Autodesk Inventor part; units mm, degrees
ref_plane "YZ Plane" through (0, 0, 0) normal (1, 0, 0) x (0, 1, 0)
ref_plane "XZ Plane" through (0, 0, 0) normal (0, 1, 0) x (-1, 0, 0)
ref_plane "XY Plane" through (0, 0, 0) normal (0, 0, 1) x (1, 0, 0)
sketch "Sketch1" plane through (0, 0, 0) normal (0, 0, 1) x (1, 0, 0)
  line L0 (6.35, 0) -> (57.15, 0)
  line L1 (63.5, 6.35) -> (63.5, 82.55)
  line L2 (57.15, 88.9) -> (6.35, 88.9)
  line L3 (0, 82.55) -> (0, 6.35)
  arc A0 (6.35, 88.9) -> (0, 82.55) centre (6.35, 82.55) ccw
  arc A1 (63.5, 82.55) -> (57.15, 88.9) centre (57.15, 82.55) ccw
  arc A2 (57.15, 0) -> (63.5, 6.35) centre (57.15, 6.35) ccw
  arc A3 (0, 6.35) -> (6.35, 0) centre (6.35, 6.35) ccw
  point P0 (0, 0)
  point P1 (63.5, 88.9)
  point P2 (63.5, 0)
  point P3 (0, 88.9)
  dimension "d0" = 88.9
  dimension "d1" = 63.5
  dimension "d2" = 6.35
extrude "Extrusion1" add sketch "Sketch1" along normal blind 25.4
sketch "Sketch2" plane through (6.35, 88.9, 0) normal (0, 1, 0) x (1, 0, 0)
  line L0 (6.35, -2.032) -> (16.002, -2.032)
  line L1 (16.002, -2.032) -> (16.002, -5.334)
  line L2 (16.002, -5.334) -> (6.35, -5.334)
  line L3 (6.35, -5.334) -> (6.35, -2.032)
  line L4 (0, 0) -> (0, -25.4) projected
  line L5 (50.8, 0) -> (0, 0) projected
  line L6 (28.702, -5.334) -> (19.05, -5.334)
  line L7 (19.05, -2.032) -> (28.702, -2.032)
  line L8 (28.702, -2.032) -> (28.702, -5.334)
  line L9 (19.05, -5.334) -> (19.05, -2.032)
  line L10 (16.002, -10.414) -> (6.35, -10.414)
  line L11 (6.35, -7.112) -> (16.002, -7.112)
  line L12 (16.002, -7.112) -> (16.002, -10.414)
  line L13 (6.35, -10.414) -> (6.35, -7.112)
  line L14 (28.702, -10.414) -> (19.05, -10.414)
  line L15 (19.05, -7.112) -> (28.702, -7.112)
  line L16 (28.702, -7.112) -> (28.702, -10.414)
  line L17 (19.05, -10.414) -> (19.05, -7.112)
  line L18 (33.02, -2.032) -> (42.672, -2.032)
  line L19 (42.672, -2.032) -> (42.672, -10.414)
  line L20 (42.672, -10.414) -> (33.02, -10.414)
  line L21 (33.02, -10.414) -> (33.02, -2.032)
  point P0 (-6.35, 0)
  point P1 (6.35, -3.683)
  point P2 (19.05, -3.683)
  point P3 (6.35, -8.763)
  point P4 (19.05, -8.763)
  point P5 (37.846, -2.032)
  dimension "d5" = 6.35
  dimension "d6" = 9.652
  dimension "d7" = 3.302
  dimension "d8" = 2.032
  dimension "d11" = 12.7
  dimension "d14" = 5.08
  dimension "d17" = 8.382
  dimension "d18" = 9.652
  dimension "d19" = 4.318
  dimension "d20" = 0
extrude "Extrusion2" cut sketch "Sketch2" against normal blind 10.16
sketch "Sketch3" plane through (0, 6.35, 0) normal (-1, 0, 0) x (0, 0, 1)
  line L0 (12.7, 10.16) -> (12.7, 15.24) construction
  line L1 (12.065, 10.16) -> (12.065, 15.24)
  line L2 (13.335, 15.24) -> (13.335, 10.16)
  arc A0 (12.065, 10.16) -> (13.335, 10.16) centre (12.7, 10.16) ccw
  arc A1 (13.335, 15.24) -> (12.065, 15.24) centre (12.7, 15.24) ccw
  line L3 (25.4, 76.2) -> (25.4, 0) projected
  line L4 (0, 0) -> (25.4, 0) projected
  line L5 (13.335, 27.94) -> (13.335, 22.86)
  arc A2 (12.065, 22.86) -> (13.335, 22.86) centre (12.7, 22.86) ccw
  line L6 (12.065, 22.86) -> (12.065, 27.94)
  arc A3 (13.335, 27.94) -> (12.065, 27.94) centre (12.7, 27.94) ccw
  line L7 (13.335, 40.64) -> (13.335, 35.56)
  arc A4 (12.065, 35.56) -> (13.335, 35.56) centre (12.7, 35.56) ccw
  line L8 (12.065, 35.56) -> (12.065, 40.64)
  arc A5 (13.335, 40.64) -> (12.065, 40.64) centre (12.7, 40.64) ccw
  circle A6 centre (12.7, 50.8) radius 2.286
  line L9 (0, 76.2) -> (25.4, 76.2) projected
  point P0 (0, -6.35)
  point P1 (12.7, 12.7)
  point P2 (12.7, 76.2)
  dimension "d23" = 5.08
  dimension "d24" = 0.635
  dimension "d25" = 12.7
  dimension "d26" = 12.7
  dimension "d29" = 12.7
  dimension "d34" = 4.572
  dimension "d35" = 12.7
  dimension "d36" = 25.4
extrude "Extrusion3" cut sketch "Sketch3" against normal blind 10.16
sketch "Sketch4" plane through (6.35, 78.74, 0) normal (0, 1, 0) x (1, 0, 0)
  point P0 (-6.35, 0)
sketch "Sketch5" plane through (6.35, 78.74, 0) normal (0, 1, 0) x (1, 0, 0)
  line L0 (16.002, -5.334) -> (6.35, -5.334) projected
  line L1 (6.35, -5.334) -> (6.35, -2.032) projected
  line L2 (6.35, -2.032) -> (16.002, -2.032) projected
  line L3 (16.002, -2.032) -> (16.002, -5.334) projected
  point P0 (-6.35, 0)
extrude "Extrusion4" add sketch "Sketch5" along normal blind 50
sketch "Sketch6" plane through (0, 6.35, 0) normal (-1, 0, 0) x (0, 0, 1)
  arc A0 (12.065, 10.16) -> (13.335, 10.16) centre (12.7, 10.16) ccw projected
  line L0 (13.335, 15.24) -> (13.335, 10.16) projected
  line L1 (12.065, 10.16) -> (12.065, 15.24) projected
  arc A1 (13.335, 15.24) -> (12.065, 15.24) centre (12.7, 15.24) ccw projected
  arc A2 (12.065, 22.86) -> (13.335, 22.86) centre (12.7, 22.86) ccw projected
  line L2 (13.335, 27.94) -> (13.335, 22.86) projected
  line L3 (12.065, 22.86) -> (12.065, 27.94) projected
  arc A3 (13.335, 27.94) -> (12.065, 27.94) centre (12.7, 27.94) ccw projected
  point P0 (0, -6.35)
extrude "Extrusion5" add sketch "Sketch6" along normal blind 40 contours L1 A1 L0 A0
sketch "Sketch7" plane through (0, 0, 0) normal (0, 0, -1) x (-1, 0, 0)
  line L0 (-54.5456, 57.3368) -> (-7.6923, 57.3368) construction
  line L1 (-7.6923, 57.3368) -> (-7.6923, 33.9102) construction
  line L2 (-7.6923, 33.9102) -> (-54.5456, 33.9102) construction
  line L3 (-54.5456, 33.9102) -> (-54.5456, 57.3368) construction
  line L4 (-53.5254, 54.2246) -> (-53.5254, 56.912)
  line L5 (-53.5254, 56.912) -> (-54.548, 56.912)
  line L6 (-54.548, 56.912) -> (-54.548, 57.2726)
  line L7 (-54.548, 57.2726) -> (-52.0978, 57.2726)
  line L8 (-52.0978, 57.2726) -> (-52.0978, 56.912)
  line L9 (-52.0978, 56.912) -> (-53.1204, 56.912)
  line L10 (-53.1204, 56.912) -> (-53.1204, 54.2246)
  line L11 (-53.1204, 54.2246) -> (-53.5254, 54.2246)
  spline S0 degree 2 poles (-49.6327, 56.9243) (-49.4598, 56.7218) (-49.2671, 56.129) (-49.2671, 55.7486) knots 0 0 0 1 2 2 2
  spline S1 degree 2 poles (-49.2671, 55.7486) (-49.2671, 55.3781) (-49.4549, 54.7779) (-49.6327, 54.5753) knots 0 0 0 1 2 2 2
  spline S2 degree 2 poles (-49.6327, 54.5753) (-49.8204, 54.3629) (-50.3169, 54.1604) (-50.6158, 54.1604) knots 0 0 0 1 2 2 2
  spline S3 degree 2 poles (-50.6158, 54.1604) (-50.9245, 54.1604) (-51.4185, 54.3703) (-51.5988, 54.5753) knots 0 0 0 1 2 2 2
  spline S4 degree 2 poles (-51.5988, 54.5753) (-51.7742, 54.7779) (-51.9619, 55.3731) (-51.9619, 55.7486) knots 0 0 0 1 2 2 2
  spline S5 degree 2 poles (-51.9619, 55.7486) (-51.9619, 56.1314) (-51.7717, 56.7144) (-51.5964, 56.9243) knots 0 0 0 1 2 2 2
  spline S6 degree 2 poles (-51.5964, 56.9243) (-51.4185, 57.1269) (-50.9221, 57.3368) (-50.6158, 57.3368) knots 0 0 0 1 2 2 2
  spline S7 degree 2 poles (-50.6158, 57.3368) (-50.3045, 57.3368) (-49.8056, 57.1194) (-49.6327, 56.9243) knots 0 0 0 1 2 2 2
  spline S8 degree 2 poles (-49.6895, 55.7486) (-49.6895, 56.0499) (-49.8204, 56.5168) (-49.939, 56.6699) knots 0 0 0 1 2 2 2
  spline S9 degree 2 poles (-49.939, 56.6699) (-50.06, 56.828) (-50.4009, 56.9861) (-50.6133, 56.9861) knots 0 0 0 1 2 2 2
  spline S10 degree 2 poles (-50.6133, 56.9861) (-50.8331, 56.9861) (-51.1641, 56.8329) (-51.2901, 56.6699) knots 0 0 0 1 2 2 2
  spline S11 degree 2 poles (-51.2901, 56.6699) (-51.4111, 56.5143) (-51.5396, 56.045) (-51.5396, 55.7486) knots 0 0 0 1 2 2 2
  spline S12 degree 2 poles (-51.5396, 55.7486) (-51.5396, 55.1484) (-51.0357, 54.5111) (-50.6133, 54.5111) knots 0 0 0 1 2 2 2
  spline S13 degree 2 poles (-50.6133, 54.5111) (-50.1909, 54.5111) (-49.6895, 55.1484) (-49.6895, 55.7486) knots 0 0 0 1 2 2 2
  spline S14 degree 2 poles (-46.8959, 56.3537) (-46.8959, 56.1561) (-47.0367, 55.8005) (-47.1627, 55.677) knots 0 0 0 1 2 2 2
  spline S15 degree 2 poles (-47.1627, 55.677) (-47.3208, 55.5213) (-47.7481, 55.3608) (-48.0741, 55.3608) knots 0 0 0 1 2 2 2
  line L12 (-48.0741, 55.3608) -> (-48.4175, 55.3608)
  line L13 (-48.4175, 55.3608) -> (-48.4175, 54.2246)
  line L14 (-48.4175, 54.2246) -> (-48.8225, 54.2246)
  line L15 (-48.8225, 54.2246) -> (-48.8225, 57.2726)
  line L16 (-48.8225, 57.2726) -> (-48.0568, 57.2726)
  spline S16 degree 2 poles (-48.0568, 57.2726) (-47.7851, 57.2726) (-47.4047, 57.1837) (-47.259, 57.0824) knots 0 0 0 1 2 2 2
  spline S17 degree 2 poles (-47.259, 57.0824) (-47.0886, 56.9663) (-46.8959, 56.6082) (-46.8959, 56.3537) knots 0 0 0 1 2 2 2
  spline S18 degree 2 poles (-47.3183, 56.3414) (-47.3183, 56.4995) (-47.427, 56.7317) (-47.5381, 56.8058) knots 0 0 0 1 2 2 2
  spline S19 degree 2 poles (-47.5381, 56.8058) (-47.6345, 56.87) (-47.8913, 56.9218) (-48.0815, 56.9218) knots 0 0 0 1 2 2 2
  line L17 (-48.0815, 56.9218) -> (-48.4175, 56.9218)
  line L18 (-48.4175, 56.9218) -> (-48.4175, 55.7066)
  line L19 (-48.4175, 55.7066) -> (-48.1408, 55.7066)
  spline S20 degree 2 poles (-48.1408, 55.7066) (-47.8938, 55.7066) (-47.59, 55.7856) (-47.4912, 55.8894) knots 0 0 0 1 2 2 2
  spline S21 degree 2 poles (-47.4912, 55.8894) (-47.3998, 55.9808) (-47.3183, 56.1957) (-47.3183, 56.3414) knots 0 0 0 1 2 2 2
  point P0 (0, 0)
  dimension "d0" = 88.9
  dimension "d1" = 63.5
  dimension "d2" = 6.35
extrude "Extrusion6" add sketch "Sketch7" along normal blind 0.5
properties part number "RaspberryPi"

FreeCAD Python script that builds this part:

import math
import FreeCAD as App
import Part
import Sketcher

V = App.Vector
Q = App.Units.Quantity

doc = App.newDocument("Part")
body = doc.addObject("PartDesign::Body", "Body")
body.AllowCompound = True

# Sketch on XY plane
sketch1 = doc.addObject("Sketcher::SketchObject", "Sketch")
body.addObject(sketch1)
sketch1.AttachmentSupport = (doc.XY_Plane, [""])
sketch1.MapMode = "FlatFace"
sketch1.addGeometry([
    Part.ArcOfCircle(Part.Circle(V(6, 6, 0), V(0, 0, 1), 6), math.radians(180), math.radians(270)),  # 0
    Part.LineSegment(V(6, 0, 0), V(57, 0, 0)),  # 1
    Part.ArcOfCircle(Part.Circle(V(57, 6, 0), V(0, 0, 1), 6), math.radians(-90), math.radians(0)),  # 2
    Part.LineSegment(V(64, 6, 0), V(64, 83, 0)),  # 3
    Part.ArcOfCircle(Part.Circle(V(57, 83, 0), V(0, 0, 1), 6), math.radians(0), math.radians(90)),  # 4
    Part.LineSegment(V(57, 89, 0), V(6, 89, 0)),  # 5
    Part.ArcOfCircle(Part.Circle(V(6, 83, 0), V(0, 0, 1), 6), math.radians(90), math.radians(180)),  # 6
    Part.LineSegment(V(0, 83, 0), V(0, 6, 0)),  # 7
], False)
sketch1.addConstraint([
    Sketcher.Constraint("Tangent", 0, 2, 1, 1),
    Sketcher.Constraint("Tangent", 1, 2, 2, 1),
    Sketcher.Constraint("Tangent", 2, 2, 3, 1),
    Sketcher.Constraint("Tangent", 3, 2, 4, 1),
    Sketcher.Constraint("Tangent", 4, 2, 5, 1),
    Sketcher.Constraint("Tangent", 5, 2, 6, 1),
    Sketcher.Constraint("Tangent", 6, 2, 7, 1),
    Sketcher.Constraint("Tangent", 7, 2, 0, 1),
    Sketcher.Constraint("Horizontal", 1),
    Sketcher.Constraint("Vertical", 3),
    Sketcher.Constraint("Horizontal", 5),
    Sketcher.Constraint("Vertical", 7),
    Sketcher.Constraint("Equal", 0, 2),
    Sketcher.Constraint("Equal", 2, 4),
    Sketcher.Constraint("Equal", 4, 6),
    Sketcher.Constraint("PointOnObject", 0, 2, -1),
    Sketcher.Constraint("PointOnObject", 6, 2, -2),
    Sketcher.Constraint("Radius", 0, Q("0.25 in")),
    Sketcher.Constraint("DistanceX", -1, 1, 2, 2, Q("2.5 in")),
    Sketcher.Constraint("DistanceY", -1, 1, 4, 2, Q("3.5 in")),
])
pad1 = doc.addObject("PartDesign::Pad", "Pad")
body.addObject(pad1)
pad1.Profile = sketch1
pad1.Length = Q("1 in")

# Sketch on XZ plane
sketch2 = doc.addObject("Sketcher::SketchObject", "Sketch001")
body.addObject(sketch2)
sketch2.AttachmentSupport = (doc.XZ_Plane, [""])
sketch2.MapMode = "FlatFace"
sketch2.AttachmentOffset = App.Placement(V(0, 0, -3.5 * 25.4), App.Rotation())
sketch2.addGeometry([
    Part.LineSegment(V(22.4, 2, 0), V(12.7, 2, 0)),  # 0
    Part.LineSegment(V(12.7, 2, 0), V(12.7, 5.3, 0)),  # 1
    Part.LineSegment(V(12.7, 5.3, 0), V(22.4, 5.3, 0)),  # 2
    Part.LineSegment(V(22.4, 5.3, 0), V(22.4, 2, 0)),  # 3
    Part.LineSegment(V(25.4, 5.3, 0), V(35.1, 5.3, 0)),  # 4
    Part.LineSegment(V(35.1, 5.3, 0), V(35.1, 2, 0)),  # 5
    Part.LineSegment(V(35.1, 2, 0), V(25.4, 2, 0)),  # 6
    Part.LineSegment(V(25.4, 2, 0), V(25.4, 5.3, 0)),  # 7
    Part.LineSegment(V(12.7, 10.4, 0), V(22.4, 10.4, 0)),  # 8
    Part.LineSegment(V(22.4, 10.4, 0), V(22.4, 7.1, 0)),  # 9
    Part.LineSegment(V(22.4, 7.1, 0), V(12.7, 7.1, 0)),  # 10
    Part.LineSegment(V(12.7, 7.1, 0), V(12.7, 10.4, 0)),  # 11
    Part.LineSegment(V(25.4, 10.4, 0), V(35.1, 10.4, 0)),  # 12
    Part.LineSegment(V(35.1, 10.4, 0), V(35.1, 7.1, 0)),  # 13
    Part.LineSegment(V(35.1, 7.1, 0), V(25.4, 7.1, 0)),  # 14
    Part.LineSegment(V(25.4, 7.1, 0), V(25.4, 10.4, 0)),  # 15
    Part.LineSegment(V(49, 2, 0), V(39.4, 2, 0)),  # 16
    Part.LineSegment(V(39.4, 2, 0), V(39.4, 10.4, 0)),  # 17
    Part.LineSegment(V(39.4, 10.4, 0), V(49, 10.4, 0)),  # 18
    Part.LineSegment(V(49, 10.4, 0), V(49, 2, 0)),  # 19
], False)
sketch2.addConstraint([
    Sketcher.Constraint("Coincident", 0, 2, 1, 1),
    Sketcher.Constraint("Coincident", 1, 2, 2, 1),
    Sketcher.Constraint("Coincident", 2, 2, 3, 1),
    Sketcher.Constraint("Coincident", 3, 2, 0, 1),
    Sketcher.Constraint("Coincident", 4, 2, 5, 1),
    Sketcher.Constraint("Coincident", 5, 2, 6, 1),
    Sketcher.Constraint("Coincident", 6, 2, 7, 1),
    Sketcher.Constraint("Coincident", 7, 2, 4, 1),
    Sketcher.Constraint("Coincident", 8, 2, 9, 1),
    Sketcher.Constraint("Coincident", 9, 2, 10, 1),
    Sketcher.Constraint("Coincident", 10, 2, 11, 1),
    Sketcher.Constraint("Coincident", 11, 2, 8, 1),
    Sketcher.Constraint("Coincident", 12, 2, 13, 1),
    Sketcher.Constraint("Coincident", 13, 2, 14, 1),
    Sketcher.Constraint("Coincident", 14, 2, 15, 1),
    Sketcher.Constraint("Coincident", 15, 2, 12, 1),
    Sketcher.Constraint("Coincident", 16, 2, 17, 1),
    Sketcher.Constraint("Coincident", 17, 2, 18, 1),
    Sketcher.Constraint("Coincident", 18, 2, 19, 1),
    Sketcher.Constraint("Coincident", 19, 2, 16, 1),
    Sketcher.Constraint("Horizontal", 0),
    Sketcher.Constraint("Vertical", 1),
    Sketcher.Constraint("Horizontal", 2),
    Sketcher.Constraint("Vertical", 3),
    Sketcher.Constraint("Horizontal", 4),
    Sketcher.Constraint("Vertical", 5),
    Sketcher.Constraint("Horizontal", 6),
    Sketcher.Constraint("Vertical", 7),
    Sketcher.Constraint("Horizontal", 8),
    Sketcher.Constraint("Vertical", 9),
    Sketcher.Constraint("Horizontal", 10),
    Sketcher.Constraint("Vertical", 11),
    Sketcher.Constraint("Horizontal", 12),
    Sketcher.Constraint("Vertical", 13),
    Sketcher.Constraint("Horizontal", 14),
    Sketcher.Constraint("Vertical", 15),
    Sketcher.Constraint("Horizontal", 16),
    Sketcher.Constraint("Vertical", 17),
    Sketcher.Constraint("Horizontal", 18),
    Sketcher.Constraint("Vertical", 19),
    Sketcher.Constraint("Horizontal", 2, 2, 4, 2),
    Sketcher.Constraint("Horizontal", 3, 2, 5, 2),
    Sketcher.Constraint("Horizontal", 11, 2, 12, 2),
    Sketcher.Constraint("Horizontal", 10, 2, 13, 2),
    Sketcher.Constraint("Horizontal", 6, 2, 16, 2),
    Sketcher.Constraint("Horizontal", 15, 2, 17, 2),
    Sketcher.Constraint("Vertical", 3, 2, 8, 2),
    Sketcher.Constraint("Vertical", 1, 2, 10, 2),
    Sketcher.Constraint("Vertical", 5, 2, 12, 2),
    Sketcher.Constraint("Vertical", 7, 2, 14, 2),
    Sketcher.Constraint("Equal", 2, 4),
    Sketcher.Constraint("Equal", 14, 16),
    Sketcher.Constraint("Equal", 7, 9),
    Sketcher.Constraint("DistanceX", 0, 2, 0, 1, Q("0.38 in")),
    Sketcher.Constraint("DistanceY", 1, 1, 1, 2, Q("0.13 in")),
    Sketcher.Constraint("DistanceY", 17, 1, 17, 2, Q("0.33 in")),
    Sketcher.Constraint("DistanceX", -1, 1, 0, 2, Q("0.5 in")),
    Sketcher.Constraint("DistanceX", 2, 2, 4, 2, Q("0.5 in")),
    Sketcher.Constraint("DistanceY", -1, 1, 0, 2, Q("0.08 in")),
    Sketcher.Constraint("DistanceX", 5, 2, 16, 2, Q("0.17 in")),
])
pocket1 = doc.addObject("PartDesign::Pocket", "Pocket")
body.addObject(pocket1)
pocket1.Profile = sketch2
pocket1.Length = Q("0.4 in")
pocket1.Reversed = True

# Sketch on YZ plane
sketch3 = doc.addObject("Sketcher::SketchObject", "Sketch002")
body.addObject(sketch3)
sketch3.AttachmentSupport = (doc.YZ_Plane, [""])
sketch3.MapMode = "FlatFace"
sketch3.addGeometry([
    Part.LineSegment(V(21.6, 12.1, 0), V(16.5, 12.1, 0)),  # 0
    Part.ArcOfCircle(Part.Circle(V(16.5, 12.7, 0), V(0, 0, 1), 0.6), math.radians(90), math.radians(270)),  # 1
    Part.LineSegment(V(16.5, 13.3, 0), V(21.6, 13.3, 0)),  # 2
    Part.ArcOfCircle(Part.Circle(V(21.6, 12.7, 0), V(0, 0, 1), 0.6), math.radians(-90), math.radians(90)),  # 3
    Part.LineSegment(V(29.2, 13.3, 0), V(34.3, 13.3, 0)),  # 4
    Part.ArcOfCircle(Part.Circle(V(34.3, 12.7, 0), V(0, 0, 1), 0.6), math.radians(-90), math.radians(90)),  # 5
    Part.LineSegment(V(34.3, 12.1, 0), V(29.2, 12.1, 0)),  # 6
    Part.ArcOfCircle(Part.Circle(V(29.2, 12.7, 0), V(0, 0, 1), 0.6), math.radians(90), math.radians(270)),  # 7
    Part.LineSegment(V(41.9, 13.3, 0), V(47, 13.3, 0)),  # 8
    Part.ArcOfCircle(Part.Circle(V(47, 12.7, 0), V(0, 0, 1), 0.6), math.radians(-90), math.radians(90)),  # 9
    Part.LineSegment(V(47, 12.1, 0), V(41.9, 12.1, 0)),  # 10
    Part.ArcOfCircle(Part.Circle(V(41.9, 12.7, 0), V(0, 0, 1), 0.6), math.radians(90), math.radians(270)),  # 11
    Part.Circle(V(57.1, 12.7, 0), V(0, 0, 1), 2.3),  # 12
], False)
sketch3.addConstraint([
    Sketcher.Constraint("Tangent", 0, 2, 1, 2),
    Sketcher.Constraint("Tangent", 1, 1, 2, 1),
    Sketcher.Constraint("Tangent", 2, 2, 3, 2),
    Sketcher.Constraint("Tangent", 3, 1, 0, 1),
    Sketcher.Constraint("Tangent", 4, 2, 5, 2),
    Sketcher.Constraint("Tangent", 5, 1, 6, 1),
    Sketcher.Constraint("Tangent", 6, 2, 7, 2),
    Sketcher.Constraint("Tangent", 7, 1, 4, 1),
    Sketcher.Constraint("Tangent", 8, 2, 9, 2),
    Sketcher.Constraint("Tangent", 9, 1, 10, 1),
    Sketcher.Constraint("Tangent", 10, 2, 11, 2),
    Sketcher.Constraint("Tangent", 11, 1, 8, 1),
    Sketcher.Constraint("Horizontal", 0),
    Sketcher.Constraint("Horizontal", 2),
    Sketcher.Constraint("Horizontal", 4),
    Sketcher.Constraint("Horizontal", 6),
    Sketcher.Constraint("Horizontal", 8),
    Sketcher.Constraint("Horizontal", 10),
    Sketcher.Constraint("Equal", 3, 5),
    Sketcher.Constraint("Equal", 7, 9),
    Sketcher.Constraint("Horizontal", 3, 3, 5, 3),
    Sketcher.Constraint("Horizontal", 7, 3, 9, 3),
    Sketcher.Constraint("Horizontal", 11, 3, 12, 3),
    Sketcher.Constraint("Equal", 2, 4),
    Sketcher.Constraint("Equal", 6, 8),
    Sketcher.Constraint("Diameter", 12, Q("0.18 in")),
    Sketcher.Constraint("DistanceX", 0, 2, 0, 1, Q("0.2 in")),
    Sketcher.Constraint("Radius", 1, Q("0.025 in")),
    Sketcher.Constraint("DistanceX", 3, 3, 9, 3, Q("1 in")),
    Sketcher.Constraint("DistanceY", -1, 1, 1, 3, Q("0.5 in")),
    Sketcher.Constraint("DistanceX", 3, 3, 5, 3, Q("0.5 in")),
    Sketcher.Constraint("DistanceX", 9, 3, 12, 3, Q("0.4 in")),
    Sketcher.Constraint("DistanceX", -1, 1, 1, 3, Q("0.65 in")),
])
pocket2 = doc.addObject("PartDesign::Pocket", "Pocket001")
body.addObject(pocket2)
pocket2.Profile = sketch3
pocket2.Length = Q("0.4 in")
pocket2.Reversed = True

# Sketch on XZ plane
sketch4 = doc.addObject("Sketcher::SketchObject", "Sketch003")
body.addObject(sketch4)
sketch4.AttachmentSupport = (doc.XZ_Plane, [""])
sketch4.MapMode = "FlatFace"
sketch4.AttachmentOffset = App.Placement(V(0, 0, -3.1 * 25.4), App.Rotation())
sketch4.addGeometry([
    Part.LineSegment(V(12.7, 5.3, 0), V(22.4, 5.3, 0)),
    Part.LineSegment(V(22.4, 5.3, 0), V(22.4, 2, 0)),
    Part.LineSegment(V(22.4, 2, 0), V(12.7, 2, 0)),
    Part.LineSegment(V(12.7, 2, 0), V(12.7, 5.3, 0)),
], False)
sketch4.addConstraint([
    Sketcher.Constraint("Coincident", 0, 2, 1, 1),
    Sketcher.Constraint("Coincident", 1, 2, 2, 1),
    Sketcher.Constraint("Coincident", 2, 2, 3, 1),
    Sketcher.Constraint("Coincident", 3, 2, 0, 1),
    Sketcher.Constraint("Horizontal", 0),
    Sketcher.Constraint("Vertical", 1),
    Sketcher.Constraint("Horizontal", 2),
    Sketcher.Constraint("Vertical", 3),
    Sketcher.Constraint("DistanceX", 0, 1, 0, 2, Q("0.38 in")),
    Sketcher.Constraint("DistanceY", 1, 2, 1, 1, Q("0.13 in")),
    Sketcher.Constraint("DistanceX", -1, 1, 2, 2, Q("0.5 in")),
    Sketcher.Constraint("DistanceY", -1, 1, 0, 2, Q("0.21 in")),
])
pad2 = doc.addObject("PartDesign::Pad", "Pad001")
body.addObject(pad2)
pad2.Profile = sketch4
pad2.Length = Q("1.9685039 in")
pad2.Reversed = True

# Sketch on YZ plane
sketch5 = doc.addObject("Sketcher::SketchObject", "Sketch004")
body.addObject(sketch5)
sketch5.AttachmentSupport = (doc.YZ_Plane, [""])
sketch5.MapMode = "FlatFace"
sketch5.addGeometry([
    Part.LineSegment(V(21.6, 12.1, 0), V(16.5, 12.1, 0)),
    Part.ArcOfCircle(Part.Circle(V(16.5, 12.7, 0), V(0, 0, 1), 0.6), math.radians(90), math.radians(270)),
    Part.LineSegment(V(16.5, 13.3, 0), V(21.6, 13.3, 0)),
    Part.ArcOfCircle(Part.Circle(V(21.6, 12.7, 0), V(0, 0, 1), 0.6), math.radians(-90), math.radians(90)),
], False)
sketch5.addConstraint([
    Sketcher.Constraint("Tangent", 0, 2, 1, 2),
    Sketcher.Constraint("Tangent", 1, 1, 2, 1),
    Sketcher.Constraint("Tangent", 2, 2, 3, 2),
    Sketcher.Constraint("Tangent", 3, 1, 0, 1),
    Sketcher.Constraint("Horizontal", 0),
    Sketcher.Constraint("Horizontal", 2),
    Sketcher.Constraint("DistanceX", 0, 2, 0, 1, Q("0.2 in")),
    Sketcher.Constraint("Radius", 1, Q("0.025 in")),
    Sketcher.Constraint("DistanceY", -1, 1, 1, 3, Q("0.5 in")),
    Sketcher.Constraint("DistanceX", -1, 1, 1, 3, Q("0.65 in")),
])
pad3 = doc.addObject("PartDesign::Pad", "Pad002")
body.addObject(pad3)
pad3.Profile = sketch5
pad3.Length = Q("1.5748031 in")
pad3.Reversed = True

# Sketch on XY plane
sketch6 = doc.addObject("Sketcher::SketchObject", "Sketch005")
body.addObject(sketch6)
sketch6.AttachmentSupport = (doc.XY_Plane, [""])
sketch6.MapMode = "FlatFace"
sketch6.addGeometry([
    Part.LineSegment(V(53.5254, 56.912, 0), V(53.5254, 54.2246, 0)),  # 0
    Part.LineSegment(V(53.5254, 54.2246, 0), V(53.1204, 54.2246, 0)),  # 1
    Part.LineSegment(V(53.1204, 54.2246, 0), V(53.1204, 56.912, 0)),  # 2
    Part.LineSegment(V(53.1204, 56.912, 0), V(52.0978, 56.912, 0)),  # 3
    Part.LineSegment(V(52.0978, 56.912, 0), V(52.0978, 57.2726, 0)),  # 4
    Part.LineSegment(V(52.0978, 57.2726, 0), V(54.548, 57.2726, 0)),  # 5
    Part.LineSegment(V(54.548, 57.2726, 0), V(54.548, 56.912, 0)),  # 6
    Part.LineSegment(V(54.548, 56.912, 0), V(53.5254, 56.912, 0)),  # 7
    Part.BSplineCurve([V(49.6327, 56.9243, 0), V(49.4598, 56.7218, 0), V(49.2671, 56.129, 0), V(49.2671, 55.7486, 0)], [3, 1, 3], [0, 1, 2], False, 2, [1, 1, 1, 1], False),  # 8
    Part.BSplineCurve([V(50.6158, 57.3368, 0), V(50.3045, 57.3368, 0), V(49.8056, 57.1194, 0), V(49.6327, 56.9243, 0)], [3, 1, 3], [0, 1, 2], False, 2, [1, 1, 1, 1], False),  # 9
    Part.BSplineCurve([V(51.5964, 56.9243, 0), V(51.4185, 57.1269, 0), V(50.9221, 57.3368, 0), V(50.6158, 57.3368, 0)], [3, 1, 3], [0, 1, 2], False, 2, [1, 1, 1, 1], False),  # 10
    Part.BSplineCurve([V(51.9619, 55.7486, 0), V(51.9619, 56.1314, 0), V(51.7717, 56.7144, 0), V(51.5964, 56.9243, 0)], [3, 1, 3], [0, 1, 2], False, 2, [1, 1, 1, 1], False),  # 11
    Part.BSplineCurve([V(51.5988, 54.5753, 0), V(51.7742, 54.7779, 0), V(51.9619, 55.3731, 0), V(51.9619, 55.7486, 0)], [3, 1, 3], [0, 1, 2], False, 2, [1, 1, 1, 1], False),  # 12
    Part.BSplineCurve([V(50.6158, 54.1604, 0), V(50.9245, 54.1604, 0), V(51.4185, 54.3703, 0), V(51.5988, 54.5753, 0)], [3, 1, 3], [0, 1, 2], False, 2, [1, 1, 1, 1], False),  # 13
    Part.BSplineCurve([V(49.6327, 54.5753, 0), V(49.8204, 54.3629, 0), V(50.3169, 54.1604, 0), V(50.6158, 54.1604, 0)], [3, 1, 3], [0, 1, 2], False, 2, [1, 1, 1, 1], False),  # 14
    Part.BSplineCurve([V(49.2671, 55.7486, 0), V(49.2671, 55.3781, 0), V(49.4549, 54.7779, 0), V(49.6327, 54.5753, 0)], [3, 1, 3], [0, 1, 2], False, 2, [1, 1, 1, 1], False),  # 15
    Part.BSplineCurve([V(49.6895, 55.7486, 0), V(49.6895, 56.0499, 0), V(49.8204, 56.5168, 0), V(49.939, 56.6699, 0)], [3, 1, 3], [0, 1, 2], False, 2, [1, 1, 1, 1], False),  # 16
    Part.BSplineCurve([V(50.6133, 54.5111, 0), V(50.1909, 54.5111, 0), V(49.6895, 55.1484, 0), V(49.6895, 55.7486, 0)], [3, 1, 3], [0, 1, 2], False, 2, [1, 1, 1, 1], False),  # 17
    Part.BSplineCurve([V(51.5396, 55.7486, 0), V(51.5396, 55.1484, 0), V(51.0357, 54.5111, 0), V(50.6133, 54.5111, 0)], [3, 1, 3], [0, 1, 2], False, 2, [1, 1, 1, 1], False),  # 18
    Part.BSplineCurve([V(51.2901, 56.6699, 0), V(51.4111, 56.5143, 0), V(51.5396, 56.045, 0), V(51.5396, 55.7486, 0)], [3, 1, 3], [0, 1, 2], False, 2, [1, 1, 1, 1], False),  # 19
    Part.BSplineCurve([V(50.6133, 56.9861, 0), V(50.8331, 56.9861, 0), V(51.1641, 56.8329, 0), V(51.2901, 56.6699, 0)], [3, 1, 3], [0, 1, 2], False, 2, [1, 1, 1, 1], False),  # 20
    Part.BSplineCurve([V(49.939, 56.6699, 0), V(50.06, 56.828, 0), V(50.4009, 56.9861, 0), V(50.6133, 56.9861, 0)], [3, 1, 3], [0, 1, 2], False, 2, [1, 1, 1, 1], False),  # 21
    Part.BSplineCurve([V(46.8959, 56.3537, 0), V(46.8959, 56.1561, 0), V(47.0367, 55.8005, 0), V(47.1627, 55.677, 0)], [3, 1, 3], [0, 1, 2], False, 2, [1, 1, 1, 1], False),  # 22
    Part.BSplineCurve([V(47.259, 57.0824, 0), V(47.0886, 56.9663, 0), V(46.8959, 56.6082, 0), V(46.8959, 56.3537, 0)], [3, 1, 3], [0, 1, 2], False, 2, [1, 1, 1, 1], False),  # 23
    Part.BSplineCurve([V(48.0568, 57.2726, 0), V(47.7851, 57.2726, 0), V(47.4047, 57.1837, 0), V(47.259, 57.0824, 0)], [3, 1, 3], [0, 1, 2], False, 2, [1, 1, 1, 1], False),  # 24
    Part.LineSegment(V(48.0568, 57.2726, 0), V(48.8225, 57.2726, 0)),  # 25
    Part.LineSegment(V(48.8225, 57.2726, 0), V(48.8225, 54.2246, 0)),  # 26
    Part.LineSegment(V(48.8225, 54.2246, 0), V(48.4175, 54.2246, 0)),  # 27
    Part.LineSegment(V(48.4175, 54.2246, 0), V(48.4175, 55.3608, 0)),  # 28
    Part.LineSegment(V(48.4175, 55.3608, 0), V(48.0741, 55.3608, 0)),  # 29
    Part.BSplineCurve([V(47.1627, 55.677, 0), V(47.3208, 55.5213, 0), V(47.7481, 55.3608, 0), V(48.0741, 55.3608, 0)], [3, 1, 3], [0, 1, 2], False, 2, [1, 1, 1, 1], False),  # 30
    Part.BSplineCurve([V(47.3183, 56.3414, 0), V(47.3183, 56.4995, 0), V(47.427, 56.7317, 0), V(47.5381, 56.8058, 0)], [3, 1, 3], [0, 1, 2], False, 2, [1, 1, 1, 1], False),  # 31
    Part.BSplineCurve([V(47.4912, 55.8894, 0), V(47.3998, 55.9808, 0), V(47.3183, 56.1957, 0), V(47.3183, 56.3414, 0)], [3, 1, 3], [0, 1, 2], False, 2, [1, 1, 1, 1], False),  # 32
    Part.BSplineCurve([V(48.1408, 55.7066, 0), V(47.8938, 55.7066, 0), V(47.59, 55.7856, 0), V(47.4912, 55.8894, 0)], [3, 1, 3], [0, 1, 2], False, 2, [1, 1, 1, 1], False),  # 33
    Part.LineSegment(V(48.1408, 55.7066, 0), V(48.4175, 55.7066, 0)),  # 34
    Part.LineSegment(V(48.4175, 55.7066, 0), V(48.4175, 56.9218, 0)),  # 35
    Part.LineSegment(V(48.4175, 56.9218, 0), V(48.0815, 56.9218, 0)),  # 36
    Part.BSplineCurve([V(47.5381, 56.8058, 0), V(47.6345, 56.87, 0), V(47.8913, 56.9218, 0), V(48.0815, 56.9218, 0)], [3, 1, 3], [0, 1, 2], False, 2, [1, 1, 1, 1], False),  # 37
], False)
sketch6.addConstraint([
    Sketcher.Constraint("Block", 8),
    Sketcher.Constraint("Block", 9),
    Sketcher.Constraint("Block", 10),
    Sketcher.Constraint("Block", 11),
    Sketcher.Constraint("Block", 12),
    Sketcher.Constraint("Block", 13),
    Sketcher.Constraint("Block", 14),
    Sketcher.Constraint("Block", 15),
    Sketcher.Constraint("Block", 16),
    Sketcher.Constraint("Block", 17),
    Sketcher.Constraint("Block", 18),
    Sketcher.Constraint("Block", 19),
    Sketcher.Constraint("Block", 20),
    Sketcher.Constraint("Block", 21),
    Sketcher.Constraint("Block", 22),
    Sketcher.Constraint("Block", 23),
    Sketcher.Constraint("Block", 24),
    Sketcher.Constraint("Block", 30),
    Sketcher.Constraint("Block", 31),
    Sketcher.Constraint("Block", 32),
    Sketcher.Constraint("Block", 33),
    Sketcher.Constraint("Block", 37),
    Sketcher.Constraint("Coincident", 0, 2, 1, 1),
    Sketcher.Constraint("Coincident", 1, 2, 2, 1),
    Sketcher.Constraint("Coincident", 2, 2, 3, 1),
    Sketcher.Constraint("Coincident", 3, 2, 4, 1),
    Sketcher.Constraint("Coincident", 4, 2, 5, 1),
    Sketcher.Constraint("Coincident", 5, 2, 6, 1),
    Sketcher.Constraint("Coincident", 6, 2, 7, 1),
    Sketcher.Constraint("Coincident", 7, 2, 0, 1),
    Sketcher.Constraint("Coincident", 24, 1, 25, 1),
    Sketcher.Constraint("Coincident", 25, 2, 26, 1),
    Sketcher.Constraint("Coincident", 26, 2, 27, 1),
    Sketcher.Constraint("Coincident", 27, 2, 28, 1),
    Sketcher.Constraint("Coincident", 28, 2, 29, 1),
    Sketcher.Constraint("Coincident", 29, 2, 30, 2),
    Sketcher.Constraint("Coincident", 33, 1, 34, 1),
    Sketcher.Constraint("Coincident", 34, 2, 35, 1),
    Sketcher.Constraint("Coincident", 35, 2, 36, 1),
    Sketcher.Constraint("Coincident", 36, 2, 37, 2),
    Sketcher.Constraint("Vertical", 0),
    Sketcher.Constraint("Horizontal", 1),
    Sketcher.Constraint("Vertical", 2),
    Sketcher.Constraint("Horizontal", 3),
    Sketcher.Constraint("Vertical", 4),
    Sketcher.Constraint("Horizontal", 5),
    Sketcher.Constraint("Vertical", 6),
    Sketcher.Constraint("Horizontal", 7),
    Sketcher.Constraint("Horizontal", 25),
    Sketcher.Constraint("Vertical", 26),
    Sketcher.Constraint("Horizontal", 27),
    Sketcher.Constraint("Vertical", 28),
    Sketcher.Constraint("Horizontal", 29),
    Sketcher.Constraint("Horizontal", 34),
    Sketcher.Constraint("Vertical", 35),
    Sketcher.Constraint("Horizontal", 36),
    Sketcher.Constraint("Horizontal", 3, 2, 6, 2),
    Sketcher.Constraint("Horizontal", 5, 2, 25, 2),
    Sketcher.Constraint("Horizontal", 1, 2, 26, 2),
    Sketcher.Constraint("Vertical", 28, 2, 34, 2),
    Sketcher.Constraint("Equal", 3, 7),
    Sketcher.Constraint("Equal", 1, 27),
    Sketcher.Constraint("DistanceY", 26, 2, 26, 1, Q("0.12 in")),
    Sketcher.Constraint("DistanceX", 34, 1, 34, 2, Q("0.0109 in")),
    Sketcher.Constraint("DistanceY", 0, 2, 0, 1, Q("0.1058 in")),
    Sketcher.Constraint("DistanceX", 1, 2, 1, 1, 0.405),
    Sketcher.Constraint("DistanceX", 3, 2, 3, 1, 1.0226),
    Sketcher.Constraint("DistanceX", -1, 1, 0, 2, Q("2.1073 in")),
])
pad4 = doc.addObject("PartDesign::Pad", "Pad003")
body.addObject(pad4)
pad4.Profile = sketch6
pad4.Length = 0.5
pad4.Reversed = True

doc.recompute()
